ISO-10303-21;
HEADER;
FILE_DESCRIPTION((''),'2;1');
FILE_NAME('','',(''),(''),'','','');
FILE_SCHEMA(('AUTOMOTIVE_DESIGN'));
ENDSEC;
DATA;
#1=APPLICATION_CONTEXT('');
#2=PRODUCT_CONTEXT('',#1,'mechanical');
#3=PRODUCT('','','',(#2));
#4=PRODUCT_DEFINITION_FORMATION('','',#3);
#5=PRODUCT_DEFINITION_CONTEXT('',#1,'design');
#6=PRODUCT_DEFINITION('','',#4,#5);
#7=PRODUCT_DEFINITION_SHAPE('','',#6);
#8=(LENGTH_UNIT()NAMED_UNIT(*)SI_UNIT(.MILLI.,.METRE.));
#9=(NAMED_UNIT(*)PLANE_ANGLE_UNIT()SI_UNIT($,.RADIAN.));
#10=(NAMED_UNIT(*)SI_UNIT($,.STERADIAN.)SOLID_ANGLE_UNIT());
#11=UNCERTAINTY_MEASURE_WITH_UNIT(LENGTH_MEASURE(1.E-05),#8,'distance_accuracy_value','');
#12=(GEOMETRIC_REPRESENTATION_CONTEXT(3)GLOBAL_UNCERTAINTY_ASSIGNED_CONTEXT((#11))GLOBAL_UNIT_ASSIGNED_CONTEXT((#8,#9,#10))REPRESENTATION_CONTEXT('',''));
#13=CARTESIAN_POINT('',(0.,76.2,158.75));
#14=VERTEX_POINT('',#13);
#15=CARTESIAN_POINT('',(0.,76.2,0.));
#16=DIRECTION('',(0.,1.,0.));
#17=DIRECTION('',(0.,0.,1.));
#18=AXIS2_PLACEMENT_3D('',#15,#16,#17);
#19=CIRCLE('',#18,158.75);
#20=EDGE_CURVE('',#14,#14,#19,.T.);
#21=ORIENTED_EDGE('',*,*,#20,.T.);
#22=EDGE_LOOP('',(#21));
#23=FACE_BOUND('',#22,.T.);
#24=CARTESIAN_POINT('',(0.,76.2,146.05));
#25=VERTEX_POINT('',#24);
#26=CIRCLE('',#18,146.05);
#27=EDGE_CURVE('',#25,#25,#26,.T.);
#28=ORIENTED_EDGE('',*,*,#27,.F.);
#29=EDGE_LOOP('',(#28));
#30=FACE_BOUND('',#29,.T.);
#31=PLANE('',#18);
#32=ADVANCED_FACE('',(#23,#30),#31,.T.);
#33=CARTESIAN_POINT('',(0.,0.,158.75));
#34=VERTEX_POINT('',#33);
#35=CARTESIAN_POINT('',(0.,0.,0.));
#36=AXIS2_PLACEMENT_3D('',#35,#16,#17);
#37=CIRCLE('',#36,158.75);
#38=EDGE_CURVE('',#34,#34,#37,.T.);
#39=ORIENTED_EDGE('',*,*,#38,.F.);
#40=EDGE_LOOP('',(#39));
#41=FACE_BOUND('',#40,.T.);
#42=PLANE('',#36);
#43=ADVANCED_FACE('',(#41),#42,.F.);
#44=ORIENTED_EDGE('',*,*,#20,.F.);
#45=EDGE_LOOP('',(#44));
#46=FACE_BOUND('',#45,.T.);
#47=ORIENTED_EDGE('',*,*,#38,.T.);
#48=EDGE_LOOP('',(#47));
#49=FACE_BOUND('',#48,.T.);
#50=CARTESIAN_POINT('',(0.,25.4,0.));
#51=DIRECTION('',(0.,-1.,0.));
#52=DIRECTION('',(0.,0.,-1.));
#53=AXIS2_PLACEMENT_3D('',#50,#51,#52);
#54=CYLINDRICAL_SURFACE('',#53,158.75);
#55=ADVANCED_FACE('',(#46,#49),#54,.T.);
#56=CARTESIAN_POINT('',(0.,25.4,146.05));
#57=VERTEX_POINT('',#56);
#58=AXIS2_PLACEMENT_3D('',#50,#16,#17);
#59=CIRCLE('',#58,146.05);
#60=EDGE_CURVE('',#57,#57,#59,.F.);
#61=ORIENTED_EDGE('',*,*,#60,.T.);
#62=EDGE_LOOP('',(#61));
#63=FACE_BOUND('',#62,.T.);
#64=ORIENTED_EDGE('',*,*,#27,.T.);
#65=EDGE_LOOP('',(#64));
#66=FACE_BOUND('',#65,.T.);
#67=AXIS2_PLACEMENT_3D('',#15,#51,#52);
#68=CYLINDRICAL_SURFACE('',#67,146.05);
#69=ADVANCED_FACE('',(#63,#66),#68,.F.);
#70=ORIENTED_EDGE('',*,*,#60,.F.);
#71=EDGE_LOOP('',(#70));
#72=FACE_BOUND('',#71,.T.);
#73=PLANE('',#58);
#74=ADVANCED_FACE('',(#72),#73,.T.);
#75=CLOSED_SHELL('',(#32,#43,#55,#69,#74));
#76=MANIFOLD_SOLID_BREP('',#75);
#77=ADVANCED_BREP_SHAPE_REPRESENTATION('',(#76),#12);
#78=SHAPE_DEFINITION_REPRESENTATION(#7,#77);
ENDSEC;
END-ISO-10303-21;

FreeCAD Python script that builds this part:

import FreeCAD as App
import Part
import Sketcher

V = App.Vector
Q = App.Units.Quantity

doc = App.newDocument("Part")
body = doc.addObject("PartDesign::Body", "Body")

# Sketch on XZ plane
sketch1 = body.newObject("Sketcher::SketchObject", "Sketch")
sketch1.AttachmentSupport = (doc.getObject("XZ_Plane"), [""])
sketch1.MapMode = "FlatFace"
sketch1.addGeometry(Part.Circle(V(0, 0, 0), V(0, 0, 1), 159), False)
sketch1.addConstraint([
    Sketcher.Constraint("Coincident", 0, 3, -1, 1),
    Sketcher.Constraint("Diameter", 0, Q("12.5 in")),
])
pad1 = body.newObject("PartDesign::Pad", "Pad")
pad1.Profile = sketch1
pad1.Length = Q("1 in")
pad1.Reversed = True

# Sketch on XZ plane
sketch2 = body.newObject("Sketcher::SketchObject", "Sketch001")
sketch2.AttachmentSupport = (doc.getObject("XZ_Plane"), [""])
sketch2.MapMode = "FlatFace"
sketch2.AttachmentOffset = App.Placement(V(0, 0, -1 * 25.4), App.Rotation())
sketch2.addGeometry([
    Part.Circle(V(0, 0, 0), V(0, 0, 1), 159),
    Part.Circle(V(0, 0, 0), V(0, 0, 1), 146),
], False)
sketch2.addConstraint([
    Sketcher.Constraint("Coincident", 0, 3, -1, 1),
    Sketcher.Constraint("Coincident", 1, 3, -1, 1),
    Sketcher.Constraint("Diameter", 0, Q("12.5 in")),
    Sketcher.Constraint("Diameter", 1, Q("11.5 in")),
])
pad2 = body.newObject("PartDesign::Pad", "Pad001")
pad2.Profile = sketch2
pad2.Length = Q("2 in")
pad2.Reversed = True

doc.recompute()
